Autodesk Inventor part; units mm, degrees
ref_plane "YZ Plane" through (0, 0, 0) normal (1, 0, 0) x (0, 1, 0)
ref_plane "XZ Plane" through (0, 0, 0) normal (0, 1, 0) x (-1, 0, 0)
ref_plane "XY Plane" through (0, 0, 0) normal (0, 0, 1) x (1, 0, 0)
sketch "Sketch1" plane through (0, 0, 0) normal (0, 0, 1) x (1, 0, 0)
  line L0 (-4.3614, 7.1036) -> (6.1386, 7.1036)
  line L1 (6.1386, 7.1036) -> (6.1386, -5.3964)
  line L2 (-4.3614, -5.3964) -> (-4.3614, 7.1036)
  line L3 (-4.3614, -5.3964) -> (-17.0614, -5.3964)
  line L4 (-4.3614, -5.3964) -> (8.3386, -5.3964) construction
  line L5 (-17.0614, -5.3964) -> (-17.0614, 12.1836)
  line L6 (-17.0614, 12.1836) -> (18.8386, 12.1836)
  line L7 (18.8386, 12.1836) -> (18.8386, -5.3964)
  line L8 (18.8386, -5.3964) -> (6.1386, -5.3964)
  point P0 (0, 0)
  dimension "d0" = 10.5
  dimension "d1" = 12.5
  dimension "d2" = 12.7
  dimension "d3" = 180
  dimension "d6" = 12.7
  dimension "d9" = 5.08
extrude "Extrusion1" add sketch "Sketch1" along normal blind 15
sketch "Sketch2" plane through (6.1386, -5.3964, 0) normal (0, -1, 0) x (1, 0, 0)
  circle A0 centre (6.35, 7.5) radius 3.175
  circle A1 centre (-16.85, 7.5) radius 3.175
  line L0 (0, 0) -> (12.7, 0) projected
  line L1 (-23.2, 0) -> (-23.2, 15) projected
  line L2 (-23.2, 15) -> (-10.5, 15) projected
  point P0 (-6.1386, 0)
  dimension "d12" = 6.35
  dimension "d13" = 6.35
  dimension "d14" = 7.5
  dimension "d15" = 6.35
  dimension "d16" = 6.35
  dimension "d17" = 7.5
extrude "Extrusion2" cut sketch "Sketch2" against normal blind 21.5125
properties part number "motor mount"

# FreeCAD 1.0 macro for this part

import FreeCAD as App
import Part
import Sketcher
Q = App.Units.Quantity

doc = App.newDocument("Part")
body = doc.addObject("PartDesign::Body", "Body")

sketch1 = doc.addObject("Sketcher::SketchObject", "Sketch")
body.addObject(sketch1)
sketch1.AttachmentSupport = (doc.XY_Plane, [""])
sketch1.MapMode = "FlatFace"
sketch1.addGeometry([
    Part.LineSegment(App.Vector(-4, -5, 0), App.Vector(-4, 7, 0)),
    Part.LineSegment(App.Vector(-4, 7, 0), App.Vector(6, 7, 0)),
    Part.LineSegment(App.Vector(6, 7, 0), App.Vector(6, -5, 0)),
    Part.LineSegment(App.Vector(6, -5, 0), App.Vector(19, -5, 0)),
    Part.LineSegment(App.Vector(19, -5, 0), App.Vector(19, 12, 0)),
    Part.LineSegment(App.Vector(19, 12, 0), App.Vector(-17, 12, 0)),
    Part.LineSegment(App.Vector(-17, 12, 0), App.Vector(-17, -5, 0)),
    Part.LineSegment(App.Vector(-17, -5, 0), App.Vector(-4, -5, 0)),
], False)
sketch1.addConstraint([
    Sketcher.Constraint("Coincident", 0, 2, 1, 1),
    Sketcher.Constraint("Coincident", 1, 2, 2, 1),
    Sketcher.Constraint("Coincident", 2, 2, 3, 1),
    Sketcher.Constraint("Coincident", 3, 2, 4, 1),
    Sketcher.Constraint("Coincident", 4, 2, 5, 1),
    Sketcher.Constraint("Coincident", 5, 2, 6, 1),
    Sketcher.Constraint("Coincident", 6, 2, 7, 1),
    Sketcher.Constraint("Coincident", 7, 2, 0, 1),
    Sketcher.Constraint("Vertical", 0),
    Sketcher.Constraint("Horizontal", 1),
    Sketcher.Constraint("Vertical", 2),
    Sketcher.Constraint("Horizontal", 3),
    Sketcher.Constraint("Vertical", 4),
    Sketcher.Constraint("Horizontal", 5),
    Sketcher.Constraint("Vertical", 6),
    Sketcher.Constraint("Horizontal", 7),
    Sketcher.Constraint("Horizontal", 3, 2, 6, 2),
    Sketcher.Constraint("Equal", 3, 7),
    Sketcher.Constraint("DistanceX", 1, 1, 1, 2, Q("10.5 mm")),
    Sketcher.Constraint("DistanceX", 3, 1, 3, 2, Q("12.7 mm")),
    Sketcher.Constraint("DistanceY", 0, 1, 0, 2, Q("12.5 mm")),
    Sketcher.Constraint("DistanceY", 1, 2, 4, 2, Q("5.08 mm")),
    Sketcher.Constraint("DistanceX", 0, 2, -1, 1, Q("4.3614 mm")),
    Sketcher.Constraint("DistanceY", -1, 1, 0, 2, Q("7.1036 mm")),
])
pad1 = doc.addObject("PartDesign::Pad", "Pad")
body.addObject(pad1)
pad1.Profile = sketch1
pad1.Length = 15

sketch2 = doc.addObject("Sketcher::SketchObject", "Sketch001")
body.addObject(sketch2)
sketch2.AttachmentSupport = (doc.XZ_Plane, [""])
sketch2.MapMode = "FlatFace"
sketch2.AttachmentOffset = App.Placement(App.Vector(0, 0, 5.3964), App.Rotation())
sketch2.addGeometry([
    Part.Circle(App.Vector(12.5, 7.5, 0), App.Vector(0, 0, 1), 3.2),
    Part.Circle(App.Vector(-10.7, 7.5, 0), App.Vector(0, 0, 1), 3.2),
], False)
sketch2.addConstraint([
    Sketcher.Constraint("Equal", 0, 1),
    Sketcher.Constraint("Horizontal", 0, 3, 1, 3),
    Sketcher.Constraint("Diameter", 0, Q("6.35 mm")),
    Sketcher.Constraint("DistanceY", -1, 1, 0, 3, Q("7.5 mm")),
    Sketcher.Constraint("DistanceX", 1, 3, 0, 3, Q("23.2 mm")),
    Sketcher.Constraint("DistanceX", -1, 1, 0, 3, Q("12.4886 mm")),
])
pocket1 = doc.addObject("PartDesign::Pocket", "Pocket")
body.addObject(pocket1)
pocket1.Profile = sketch2
pocket1.Length = 21.5125

doc.recompute()
